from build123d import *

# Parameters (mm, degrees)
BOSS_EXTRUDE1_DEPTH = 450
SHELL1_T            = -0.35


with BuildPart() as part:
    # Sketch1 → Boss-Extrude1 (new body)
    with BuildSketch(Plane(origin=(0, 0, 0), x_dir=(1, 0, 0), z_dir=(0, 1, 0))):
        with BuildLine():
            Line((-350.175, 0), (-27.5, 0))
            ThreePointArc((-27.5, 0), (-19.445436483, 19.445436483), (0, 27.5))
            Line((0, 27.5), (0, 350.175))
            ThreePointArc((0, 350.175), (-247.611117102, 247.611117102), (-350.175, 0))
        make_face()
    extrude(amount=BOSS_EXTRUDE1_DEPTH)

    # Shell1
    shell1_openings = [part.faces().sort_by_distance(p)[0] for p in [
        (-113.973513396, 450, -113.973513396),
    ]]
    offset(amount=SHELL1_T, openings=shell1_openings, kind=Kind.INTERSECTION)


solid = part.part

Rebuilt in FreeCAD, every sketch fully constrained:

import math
import FreeCAD as App
import Part
import Sketcher


def faces_at(feature, points):
    """Names of the faces that lie closest to the given points."""
    faces = feature.Shape.Faces
    near = lambda p: min(range(len(faces)), key=lambda i: faces[i].distToShape(Part.Vertex(*p))[0])
    return sorted({f"Face{near(p) + 1}" for p in points})

doc = App.newDocument("Part")
params = doc.addObject("Spreadsheet::Sheet", "Params")
for row, (alias, value) in enumerate([
    ("sketch1_radius", "27.5 mm"),
    ("pad1_length", "450 mm"),
    ("thickness_wall", "0.35 mm"),
], start=1):
    params.set(f"A{row}", alias)
    params.set(f"B{row}", "=" + value)
    params.setAlias(f"B{row}", alias)

body = doc.addObject("PartDesign::Body", "Body")

sketch1 = body.newObject("Sketcher::SketchObject", "Sketch")
sketch1.AttachmentSupport = (doc.getObject("XZ_Plane"), [""])
sketch1.MapMode = "FlatFace"
sketch1.addGeometry([
    Part.LineSegment(App.Vector(-350.175, 0, 0), App.Vector(-27.5, 0, 0)),
    Part.ArcOfCircle(Part.Circle(App.Vector(0, 0, 0), App.Vector(0, 0, 1), 27.5), math.radians(180), math.radians(270)),
    Part.LineSegment(App.Vector(0, -27.5, 0), App.Vector(0, -350.175, 0)),
    Part.ArcOfCircle(Part.Circle(App.Vector(0, 0, 0), App.Vector(0, 0, 1), 350.175), math.radians(180), math.radians(270)),
], False)
sketch1.addConstraint([
    Sketcher.Constraint("Coincident", 0, 2, 1, 1),
    Sketcher.Constraint("Coincident", 1, 2, 2, 1),
    Sketcher.Constraint("Coincident", 2, 2, 3, 2),
    Sketcher.Constraint("Coincident", 3, 1, 0, 1),
    Sketcher.Constraint("Horizontal", 0),
    Sketcher.Constraint("Vertical", 2),
    Sketcher.Constraint("Coincident", 1, 3, -1, 1),
    Sketcher.Constraint("Coincident", 3, 3, -1, 1),
    Sketcher.Constraint("PointOnObject", 0, 2, -1),
    Sketcher.Constraint("PointOnObject", 1, 2, -2),
    Sketcher.Constraint("Radius", 1, 27.5),
    Sketcher.Constraint("Radius", 3, 350.175),
])
sketch1.setExpression("Constraints[10]", "Params.sketch1_radius")
pad1 = body.newObject("PartDesign::Pad", "Pad")
pad1.Profile = sketch1
pad1.setExpression("Length", "Params.pad1_length")
pad1.Reversed = True
doc.recompute()

thickness = body.newObject("PartDesign::Thickness", "Thickness")
thickness.Base = (pad1, faces_at(pad1, [(-175.088, 450, -175.088)]))
thickness.setExpression("Value", "Params.thickness_wall")
thickness.Reversed = True
thickness.Join = "Intersection"

doc.recompute()
